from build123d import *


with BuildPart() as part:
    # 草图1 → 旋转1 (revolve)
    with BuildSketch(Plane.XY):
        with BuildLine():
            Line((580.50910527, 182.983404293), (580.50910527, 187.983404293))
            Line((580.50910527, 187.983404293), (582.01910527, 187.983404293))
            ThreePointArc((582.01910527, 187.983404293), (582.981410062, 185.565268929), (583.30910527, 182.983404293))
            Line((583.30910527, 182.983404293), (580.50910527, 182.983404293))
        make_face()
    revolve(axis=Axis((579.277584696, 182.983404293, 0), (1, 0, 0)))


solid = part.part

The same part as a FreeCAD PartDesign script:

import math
import FreeCAD as App
import Part
import Sketcher
from FreeCAD import Vector
Q = App.Units.Quantity

doc = App.newDocument("Part")
body = doc.addObject("PartDesign::Body", "Body")

# Sketch on XY plane
sketch1 = body.newObject("Sketcher::SketchObject", "Sketch")
sketch1.AttachmentSupport = (doc.getObject("XY_Plane"), [""])
sketch1.MapMode = "FlatFace"
sketch1.addGeometry([
    Part.LineSegment(Vector(580.5, 188, 0), Vector(580.5, 183, 0)),
    Part.LineSegment(Vector(580.5, 183, 0), Vector(583.3, 183, 0)),
    Part.ArcOfCircle(Part.Circle(Vector(573, 183, 0), Vector(0, 0, 1), 10.3), math.radians(0), math.radians(29)),
    Part.LineSegment(Vector(582, 188, 0), Vector(580.5, 188, 0)),
], False)
sketch1.addGeometry(Part.LineSegment(Vector(573, 183, 0), Vector(583.3, 183, 0)), True)  # axis
sketch1.addConstraint([
    Sketcher.Constraint("Coincident", 0, 2, 1, 1),
    Sketcher.Constraint("Coincident", 1, 2, 2, 1),
    Sketcher.Constraint("Coincident", 2, 2, 3, 1),
    Sketcher.Constraint("Coincident", 3, 2, 0, 1),
    Sketcher.Constraint("Vertical", 0),
    Sketcher.Constraint("Horizontal", 1),
    Sketcher.Constraint("Horizontal", 3),
    Sketcher.Constraint("Horizontal", 4),
    Sketcher.Constraint("Coincident", 4, 1, 2, 3),
    Sketcher.Constraint("Coincident", 4, 2, 1, 2),
    Sketcher.Constraint("DistanceY", 0, 2, 0, 1, Q("5 mm")),
    Sketcher.Constraint("DistanceX", 1, 1, 1, 2, Q("2.8 mm")),
    Sketcher.Constraint("DistanceX", 3, 2, 3, 1, Q("1.51 mm")),
    Sketcher.Constraint("DistanceX", -1, 1, 2, 3, Q("572.974183 mm")),
    Sketcher.Constraint("DistanceY", -1, 1, 2, 3, Q("182.983404 mm")),
])
revolution = body.newObject("PartDesign::Revolution", "Revolution")
revolution.Profile = sketch1
revolution.ReferenceAxis = (sketch1, ["Axis0"])
revolution.Angle = 360

doc.recompute()
